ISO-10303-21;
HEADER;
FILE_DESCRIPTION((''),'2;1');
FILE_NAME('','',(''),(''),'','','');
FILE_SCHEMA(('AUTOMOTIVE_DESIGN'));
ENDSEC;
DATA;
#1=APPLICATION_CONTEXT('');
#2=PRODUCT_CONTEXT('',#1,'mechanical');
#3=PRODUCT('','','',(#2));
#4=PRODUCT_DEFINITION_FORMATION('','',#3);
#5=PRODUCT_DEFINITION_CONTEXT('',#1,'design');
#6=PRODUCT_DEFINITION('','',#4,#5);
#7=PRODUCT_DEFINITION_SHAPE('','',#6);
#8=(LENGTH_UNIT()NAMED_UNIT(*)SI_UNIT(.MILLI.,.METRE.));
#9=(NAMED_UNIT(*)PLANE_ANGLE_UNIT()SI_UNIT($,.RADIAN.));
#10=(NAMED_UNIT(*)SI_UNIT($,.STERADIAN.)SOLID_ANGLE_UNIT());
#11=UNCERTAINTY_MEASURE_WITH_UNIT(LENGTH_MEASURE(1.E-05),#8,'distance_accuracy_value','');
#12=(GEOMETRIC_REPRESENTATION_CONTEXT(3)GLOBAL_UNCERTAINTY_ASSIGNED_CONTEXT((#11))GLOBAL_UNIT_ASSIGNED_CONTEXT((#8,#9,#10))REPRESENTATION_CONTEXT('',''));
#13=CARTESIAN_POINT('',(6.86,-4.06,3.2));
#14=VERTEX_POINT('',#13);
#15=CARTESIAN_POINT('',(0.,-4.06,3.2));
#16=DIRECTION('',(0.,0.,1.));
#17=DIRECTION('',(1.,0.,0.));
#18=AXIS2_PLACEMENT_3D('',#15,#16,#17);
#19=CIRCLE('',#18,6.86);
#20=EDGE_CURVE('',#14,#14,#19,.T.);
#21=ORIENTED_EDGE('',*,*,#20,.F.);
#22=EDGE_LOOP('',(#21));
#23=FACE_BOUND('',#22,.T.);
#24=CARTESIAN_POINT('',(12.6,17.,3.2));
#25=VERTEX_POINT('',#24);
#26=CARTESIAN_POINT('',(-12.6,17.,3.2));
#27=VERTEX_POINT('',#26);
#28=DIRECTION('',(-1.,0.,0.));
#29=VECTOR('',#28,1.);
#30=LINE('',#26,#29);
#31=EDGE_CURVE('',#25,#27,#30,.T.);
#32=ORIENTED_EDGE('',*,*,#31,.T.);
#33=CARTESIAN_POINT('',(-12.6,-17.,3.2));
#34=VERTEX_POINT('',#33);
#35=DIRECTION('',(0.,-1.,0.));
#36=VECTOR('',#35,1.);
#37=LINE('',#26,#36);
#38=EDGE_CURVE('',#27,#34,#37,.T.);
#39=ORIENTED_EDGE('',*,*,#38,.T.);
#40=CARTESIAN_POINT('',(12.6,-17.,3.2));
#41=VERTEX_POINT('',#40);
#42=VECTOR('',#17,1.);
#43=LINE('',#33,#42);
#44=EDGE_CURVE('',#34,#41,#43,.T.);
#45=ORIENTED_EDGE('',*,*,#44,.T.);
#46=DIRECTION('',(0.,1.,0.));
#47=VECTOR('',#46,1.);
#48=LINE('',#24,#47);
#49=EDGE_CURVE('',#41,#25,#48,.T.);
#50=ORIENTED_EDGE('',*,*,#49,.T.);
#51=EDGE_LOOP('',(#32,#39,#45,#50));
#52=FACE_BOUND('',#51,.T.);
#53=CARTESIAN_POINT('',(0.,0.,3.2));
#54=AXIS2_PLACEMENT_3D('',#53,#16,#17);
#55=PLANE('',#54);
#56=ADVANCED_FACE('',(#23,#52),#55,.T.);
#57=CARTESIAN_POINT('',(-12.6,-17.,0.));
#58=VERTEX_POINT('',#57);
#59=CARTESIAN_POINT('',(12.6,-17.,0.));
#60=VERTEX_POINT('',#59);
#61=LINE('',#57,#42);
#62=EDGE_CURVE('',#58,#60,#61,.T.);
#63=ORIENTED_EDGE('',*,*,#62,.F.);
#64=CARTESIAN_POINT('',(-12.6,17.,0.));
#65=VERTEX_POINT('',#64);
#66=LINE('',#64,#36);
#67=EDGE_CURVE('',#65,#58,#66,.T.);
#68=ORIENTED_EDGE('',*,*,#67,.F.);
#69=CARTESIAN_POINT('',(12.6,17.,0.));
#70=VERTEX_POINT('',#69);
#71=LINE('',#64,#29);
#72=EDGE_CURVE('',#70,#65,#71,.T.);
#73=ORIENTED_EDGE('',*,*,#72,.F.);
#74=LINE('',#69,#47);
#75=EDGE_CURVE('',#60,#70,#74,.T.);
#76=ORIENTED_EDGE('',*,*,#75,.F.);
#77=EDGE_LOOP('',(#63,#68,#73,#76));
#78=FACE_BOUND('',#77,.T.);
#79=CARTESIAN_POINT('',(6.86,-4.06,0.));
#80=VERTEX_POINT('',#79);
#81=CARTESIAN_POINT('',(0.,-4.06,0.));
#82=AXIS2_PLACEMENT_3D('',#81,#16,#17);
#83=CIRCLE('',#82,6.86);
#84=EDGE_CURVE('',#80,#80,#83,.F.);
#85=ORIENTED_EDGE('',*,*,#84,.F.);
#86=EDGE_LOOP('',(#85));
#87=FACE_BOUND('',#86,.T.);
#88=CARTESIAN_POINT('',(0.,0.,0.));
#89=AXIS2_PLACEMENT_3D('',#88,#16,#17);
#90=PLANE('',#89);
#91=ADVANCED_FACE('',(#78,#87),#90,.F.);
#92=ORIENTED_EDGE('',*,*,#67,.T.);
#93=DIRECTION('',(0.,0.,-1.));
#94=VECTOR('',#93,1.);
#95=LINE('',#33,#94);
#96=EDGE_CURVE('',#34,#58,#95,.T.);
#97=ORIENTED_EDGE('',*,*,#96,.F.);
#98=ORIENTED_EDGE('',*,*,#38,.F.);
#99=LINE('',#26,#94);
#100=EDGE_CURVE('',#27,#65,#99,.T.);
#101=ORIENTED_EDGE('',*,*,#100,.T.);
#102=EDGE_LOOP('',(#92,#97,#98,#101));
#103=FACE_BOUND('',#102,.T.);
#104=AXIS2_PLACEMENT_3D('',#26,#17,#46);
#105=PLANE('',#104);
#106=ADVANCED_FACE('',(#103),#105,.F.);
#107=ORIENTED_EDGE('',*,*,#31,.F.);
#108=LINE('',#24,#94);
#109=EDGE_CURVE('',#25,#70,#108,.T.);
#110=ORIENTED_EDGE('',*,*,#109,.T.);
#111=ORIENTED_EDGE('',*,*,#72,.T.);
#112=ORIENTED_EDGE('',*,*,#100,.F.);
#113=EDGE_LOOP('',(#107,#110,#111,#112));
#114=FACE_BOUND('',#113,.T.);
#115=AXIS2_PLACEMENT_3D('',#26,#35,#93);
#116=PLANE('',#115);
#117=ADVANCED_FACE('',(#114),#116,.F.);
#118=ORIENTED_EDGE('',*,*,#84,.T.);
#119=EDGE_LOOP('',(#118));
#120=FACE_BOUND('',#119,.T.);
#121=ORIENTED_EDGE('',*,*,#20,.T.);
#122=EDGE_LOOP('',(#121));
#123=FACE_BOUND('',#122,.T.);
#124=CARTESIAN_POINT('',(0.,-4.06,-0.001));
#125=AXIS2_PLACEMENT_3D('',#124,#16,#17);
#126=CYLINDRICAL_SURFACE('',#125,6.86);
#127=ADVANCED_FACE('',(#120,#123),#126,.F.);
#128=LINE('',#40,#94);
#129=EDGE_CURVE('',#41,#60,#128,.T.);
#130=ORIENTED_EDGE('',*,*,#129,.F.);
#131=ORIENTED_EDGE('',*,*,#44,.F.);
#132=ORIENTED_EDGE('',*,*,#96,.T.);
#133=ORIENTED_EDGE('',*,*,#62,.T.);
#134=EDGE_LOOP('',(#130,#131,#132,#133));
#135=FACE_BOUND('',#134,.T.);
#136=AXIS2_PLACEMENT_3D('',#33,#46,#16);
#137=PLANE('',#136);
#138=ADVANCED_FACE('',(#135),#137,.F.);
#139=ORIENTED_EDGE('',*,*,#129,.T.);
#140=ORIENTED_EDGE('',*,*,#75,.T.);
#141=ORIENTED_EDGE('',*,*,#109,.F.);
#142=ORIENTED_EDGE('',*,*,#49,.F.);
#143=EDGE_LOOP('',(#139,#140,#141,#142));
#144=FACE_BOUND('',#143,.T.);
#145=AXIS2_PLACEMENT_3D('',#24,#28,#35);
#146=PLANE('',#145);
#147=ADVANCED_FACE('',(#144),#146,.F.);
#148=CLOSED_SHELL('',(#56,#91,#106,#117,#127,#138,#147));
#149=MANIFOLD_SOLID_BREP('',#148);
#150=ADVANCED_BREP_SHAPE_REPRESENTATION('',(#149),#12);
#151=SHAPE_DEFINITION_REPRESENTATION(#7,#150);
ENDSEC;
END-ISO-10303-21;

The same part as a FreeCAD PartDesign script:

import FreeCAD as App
import Part
import Sketcher
Q = App.Units.Quantity

doc = App.newDocument("Part")
params = doc.addObject("Spreadsheet::Sheet", "Params")
for row, (alias, value) in enumerate([
    ("sketch1_height", "34 mm"),
    ("sketch1_width", "25.2 mm"),
    ("pad1_length", "3.2 mm"),
    ("sketch2_diameter", "13.72 mm"),
], start=1):
    params.set(f"A{row}", alias)
    params.set(f"B{row}", "=" + value)
    params.setAlias(f"B{row}", alias)

body = doc.addObject("PartDesign::Body", "Body")

# Sketch on XY plane
sketch1 = body.newObject("Sketcher::SketchObject", "Sketch")
sketch1.AttachmentSupport = (doc.getObject("XY_Plane"), [""])
sketch1.MapMode = "FlatFace"
sketch1.addGeometry(Part.LineSegment(App.Vector(-13, 17, 0), App.Vector(-13, -17, 0)), False)
sketch1.addGeometry(Part.LineSegment(App.Vector(-13, -17, 0), App.Vector(13, -17, 0)), False)
sketch1.addGeometry(Part.LineSegment(App.Vector(13, -17, 0), App.Vector(13, 17, 0)), False)
sketch1.addGeometry(Part.LineSegment(App.Vector(13, 17, 0), App.Vector(-13, 17, 0)), False)
sketch1.addConstraint(Sketcher.Constraint("Coincident", 0, 2, 1, 1))
sketch1.addConstraint(Sketcher.Constraint("Coincident", 1, 2, 2, 1))
sketch1.addConstraint(Sketcher.Constraint("Coincident", 2, 2, 3, 1))
sketch1.addConstraint(Sketcher.Constraint("Coincident", 3, 2, 0, 1))
sketch1.addConstraint(Sketcher.Constraint("Vertical", 0))
sketch1.addConstraint(Sketcher.Constraint("Horizontal", 1))
sketch1.addConstraint(Sketcher.Constraint("Vertical", 2))
sketch1.addConstraint(Sketcher.Constraint("Horizontal", 3))
sketch1.addConstraint(Sketcher.Constraint("Symmetric", 0, 2, 2, 2, -1, 1))
sketch1.addConstraint(Sketcher.Constraint("DistanceY", 0, 2, 0, 1, Q("34 mm")))
sketch1.addConstraint(Sketcher.Constraint("DistanceX", 1, 1, 1, 2, Q("25.2 mm")))
sketch1.setExpression("Constraints[9]", "Params.sketch1_height")
sketch1.setExpression("Constraints[10]", "Params.sketch1_width")
pad1 = body.newObject("PartDesign::Pad", "Pad")
pad1.Profile = sketch1
pad1.setExpression("Length", "Params.pad1_length")

# Sketch on XY plane
sketch2 = body.newObject("Sketcher::SketchObject", "Sketch001")
sketch2.AttachmentSupport = (doc.getObject("XY_Plane"), [""])
sketch2.MapMode = "FlatFace"
sketch2.AttachmentOffset = App.Placement(App.Vector(0, 0, 3.2), App.Rotation())
sketch2.addGeometry(Part.Circle(App.Vector(0, -4, 0), App.Vector(0, 0, 1), 7), False)
sketch2.addConstraint(Sketcher.Constraint("PointOnObject", 0, 3, -2))
sketch2.addConstraint(Sketcher.Constraint("Diameter", 0, Q("13.72 mm")))
sketch2.addConstraint(Sketcher.Constraint("DistanceY", 0, 3, -1, 1, Q("4.06 mm")))
sketch2.setExpression("Constraints[1]", "Params.sketch2_diameter")
pocket1 = body.newObject("PartDesign::Pocket", "Pocket")
pocket1.Profile = sketch2
pocket1.Type = "UpToFirst"

doc.recompute()
